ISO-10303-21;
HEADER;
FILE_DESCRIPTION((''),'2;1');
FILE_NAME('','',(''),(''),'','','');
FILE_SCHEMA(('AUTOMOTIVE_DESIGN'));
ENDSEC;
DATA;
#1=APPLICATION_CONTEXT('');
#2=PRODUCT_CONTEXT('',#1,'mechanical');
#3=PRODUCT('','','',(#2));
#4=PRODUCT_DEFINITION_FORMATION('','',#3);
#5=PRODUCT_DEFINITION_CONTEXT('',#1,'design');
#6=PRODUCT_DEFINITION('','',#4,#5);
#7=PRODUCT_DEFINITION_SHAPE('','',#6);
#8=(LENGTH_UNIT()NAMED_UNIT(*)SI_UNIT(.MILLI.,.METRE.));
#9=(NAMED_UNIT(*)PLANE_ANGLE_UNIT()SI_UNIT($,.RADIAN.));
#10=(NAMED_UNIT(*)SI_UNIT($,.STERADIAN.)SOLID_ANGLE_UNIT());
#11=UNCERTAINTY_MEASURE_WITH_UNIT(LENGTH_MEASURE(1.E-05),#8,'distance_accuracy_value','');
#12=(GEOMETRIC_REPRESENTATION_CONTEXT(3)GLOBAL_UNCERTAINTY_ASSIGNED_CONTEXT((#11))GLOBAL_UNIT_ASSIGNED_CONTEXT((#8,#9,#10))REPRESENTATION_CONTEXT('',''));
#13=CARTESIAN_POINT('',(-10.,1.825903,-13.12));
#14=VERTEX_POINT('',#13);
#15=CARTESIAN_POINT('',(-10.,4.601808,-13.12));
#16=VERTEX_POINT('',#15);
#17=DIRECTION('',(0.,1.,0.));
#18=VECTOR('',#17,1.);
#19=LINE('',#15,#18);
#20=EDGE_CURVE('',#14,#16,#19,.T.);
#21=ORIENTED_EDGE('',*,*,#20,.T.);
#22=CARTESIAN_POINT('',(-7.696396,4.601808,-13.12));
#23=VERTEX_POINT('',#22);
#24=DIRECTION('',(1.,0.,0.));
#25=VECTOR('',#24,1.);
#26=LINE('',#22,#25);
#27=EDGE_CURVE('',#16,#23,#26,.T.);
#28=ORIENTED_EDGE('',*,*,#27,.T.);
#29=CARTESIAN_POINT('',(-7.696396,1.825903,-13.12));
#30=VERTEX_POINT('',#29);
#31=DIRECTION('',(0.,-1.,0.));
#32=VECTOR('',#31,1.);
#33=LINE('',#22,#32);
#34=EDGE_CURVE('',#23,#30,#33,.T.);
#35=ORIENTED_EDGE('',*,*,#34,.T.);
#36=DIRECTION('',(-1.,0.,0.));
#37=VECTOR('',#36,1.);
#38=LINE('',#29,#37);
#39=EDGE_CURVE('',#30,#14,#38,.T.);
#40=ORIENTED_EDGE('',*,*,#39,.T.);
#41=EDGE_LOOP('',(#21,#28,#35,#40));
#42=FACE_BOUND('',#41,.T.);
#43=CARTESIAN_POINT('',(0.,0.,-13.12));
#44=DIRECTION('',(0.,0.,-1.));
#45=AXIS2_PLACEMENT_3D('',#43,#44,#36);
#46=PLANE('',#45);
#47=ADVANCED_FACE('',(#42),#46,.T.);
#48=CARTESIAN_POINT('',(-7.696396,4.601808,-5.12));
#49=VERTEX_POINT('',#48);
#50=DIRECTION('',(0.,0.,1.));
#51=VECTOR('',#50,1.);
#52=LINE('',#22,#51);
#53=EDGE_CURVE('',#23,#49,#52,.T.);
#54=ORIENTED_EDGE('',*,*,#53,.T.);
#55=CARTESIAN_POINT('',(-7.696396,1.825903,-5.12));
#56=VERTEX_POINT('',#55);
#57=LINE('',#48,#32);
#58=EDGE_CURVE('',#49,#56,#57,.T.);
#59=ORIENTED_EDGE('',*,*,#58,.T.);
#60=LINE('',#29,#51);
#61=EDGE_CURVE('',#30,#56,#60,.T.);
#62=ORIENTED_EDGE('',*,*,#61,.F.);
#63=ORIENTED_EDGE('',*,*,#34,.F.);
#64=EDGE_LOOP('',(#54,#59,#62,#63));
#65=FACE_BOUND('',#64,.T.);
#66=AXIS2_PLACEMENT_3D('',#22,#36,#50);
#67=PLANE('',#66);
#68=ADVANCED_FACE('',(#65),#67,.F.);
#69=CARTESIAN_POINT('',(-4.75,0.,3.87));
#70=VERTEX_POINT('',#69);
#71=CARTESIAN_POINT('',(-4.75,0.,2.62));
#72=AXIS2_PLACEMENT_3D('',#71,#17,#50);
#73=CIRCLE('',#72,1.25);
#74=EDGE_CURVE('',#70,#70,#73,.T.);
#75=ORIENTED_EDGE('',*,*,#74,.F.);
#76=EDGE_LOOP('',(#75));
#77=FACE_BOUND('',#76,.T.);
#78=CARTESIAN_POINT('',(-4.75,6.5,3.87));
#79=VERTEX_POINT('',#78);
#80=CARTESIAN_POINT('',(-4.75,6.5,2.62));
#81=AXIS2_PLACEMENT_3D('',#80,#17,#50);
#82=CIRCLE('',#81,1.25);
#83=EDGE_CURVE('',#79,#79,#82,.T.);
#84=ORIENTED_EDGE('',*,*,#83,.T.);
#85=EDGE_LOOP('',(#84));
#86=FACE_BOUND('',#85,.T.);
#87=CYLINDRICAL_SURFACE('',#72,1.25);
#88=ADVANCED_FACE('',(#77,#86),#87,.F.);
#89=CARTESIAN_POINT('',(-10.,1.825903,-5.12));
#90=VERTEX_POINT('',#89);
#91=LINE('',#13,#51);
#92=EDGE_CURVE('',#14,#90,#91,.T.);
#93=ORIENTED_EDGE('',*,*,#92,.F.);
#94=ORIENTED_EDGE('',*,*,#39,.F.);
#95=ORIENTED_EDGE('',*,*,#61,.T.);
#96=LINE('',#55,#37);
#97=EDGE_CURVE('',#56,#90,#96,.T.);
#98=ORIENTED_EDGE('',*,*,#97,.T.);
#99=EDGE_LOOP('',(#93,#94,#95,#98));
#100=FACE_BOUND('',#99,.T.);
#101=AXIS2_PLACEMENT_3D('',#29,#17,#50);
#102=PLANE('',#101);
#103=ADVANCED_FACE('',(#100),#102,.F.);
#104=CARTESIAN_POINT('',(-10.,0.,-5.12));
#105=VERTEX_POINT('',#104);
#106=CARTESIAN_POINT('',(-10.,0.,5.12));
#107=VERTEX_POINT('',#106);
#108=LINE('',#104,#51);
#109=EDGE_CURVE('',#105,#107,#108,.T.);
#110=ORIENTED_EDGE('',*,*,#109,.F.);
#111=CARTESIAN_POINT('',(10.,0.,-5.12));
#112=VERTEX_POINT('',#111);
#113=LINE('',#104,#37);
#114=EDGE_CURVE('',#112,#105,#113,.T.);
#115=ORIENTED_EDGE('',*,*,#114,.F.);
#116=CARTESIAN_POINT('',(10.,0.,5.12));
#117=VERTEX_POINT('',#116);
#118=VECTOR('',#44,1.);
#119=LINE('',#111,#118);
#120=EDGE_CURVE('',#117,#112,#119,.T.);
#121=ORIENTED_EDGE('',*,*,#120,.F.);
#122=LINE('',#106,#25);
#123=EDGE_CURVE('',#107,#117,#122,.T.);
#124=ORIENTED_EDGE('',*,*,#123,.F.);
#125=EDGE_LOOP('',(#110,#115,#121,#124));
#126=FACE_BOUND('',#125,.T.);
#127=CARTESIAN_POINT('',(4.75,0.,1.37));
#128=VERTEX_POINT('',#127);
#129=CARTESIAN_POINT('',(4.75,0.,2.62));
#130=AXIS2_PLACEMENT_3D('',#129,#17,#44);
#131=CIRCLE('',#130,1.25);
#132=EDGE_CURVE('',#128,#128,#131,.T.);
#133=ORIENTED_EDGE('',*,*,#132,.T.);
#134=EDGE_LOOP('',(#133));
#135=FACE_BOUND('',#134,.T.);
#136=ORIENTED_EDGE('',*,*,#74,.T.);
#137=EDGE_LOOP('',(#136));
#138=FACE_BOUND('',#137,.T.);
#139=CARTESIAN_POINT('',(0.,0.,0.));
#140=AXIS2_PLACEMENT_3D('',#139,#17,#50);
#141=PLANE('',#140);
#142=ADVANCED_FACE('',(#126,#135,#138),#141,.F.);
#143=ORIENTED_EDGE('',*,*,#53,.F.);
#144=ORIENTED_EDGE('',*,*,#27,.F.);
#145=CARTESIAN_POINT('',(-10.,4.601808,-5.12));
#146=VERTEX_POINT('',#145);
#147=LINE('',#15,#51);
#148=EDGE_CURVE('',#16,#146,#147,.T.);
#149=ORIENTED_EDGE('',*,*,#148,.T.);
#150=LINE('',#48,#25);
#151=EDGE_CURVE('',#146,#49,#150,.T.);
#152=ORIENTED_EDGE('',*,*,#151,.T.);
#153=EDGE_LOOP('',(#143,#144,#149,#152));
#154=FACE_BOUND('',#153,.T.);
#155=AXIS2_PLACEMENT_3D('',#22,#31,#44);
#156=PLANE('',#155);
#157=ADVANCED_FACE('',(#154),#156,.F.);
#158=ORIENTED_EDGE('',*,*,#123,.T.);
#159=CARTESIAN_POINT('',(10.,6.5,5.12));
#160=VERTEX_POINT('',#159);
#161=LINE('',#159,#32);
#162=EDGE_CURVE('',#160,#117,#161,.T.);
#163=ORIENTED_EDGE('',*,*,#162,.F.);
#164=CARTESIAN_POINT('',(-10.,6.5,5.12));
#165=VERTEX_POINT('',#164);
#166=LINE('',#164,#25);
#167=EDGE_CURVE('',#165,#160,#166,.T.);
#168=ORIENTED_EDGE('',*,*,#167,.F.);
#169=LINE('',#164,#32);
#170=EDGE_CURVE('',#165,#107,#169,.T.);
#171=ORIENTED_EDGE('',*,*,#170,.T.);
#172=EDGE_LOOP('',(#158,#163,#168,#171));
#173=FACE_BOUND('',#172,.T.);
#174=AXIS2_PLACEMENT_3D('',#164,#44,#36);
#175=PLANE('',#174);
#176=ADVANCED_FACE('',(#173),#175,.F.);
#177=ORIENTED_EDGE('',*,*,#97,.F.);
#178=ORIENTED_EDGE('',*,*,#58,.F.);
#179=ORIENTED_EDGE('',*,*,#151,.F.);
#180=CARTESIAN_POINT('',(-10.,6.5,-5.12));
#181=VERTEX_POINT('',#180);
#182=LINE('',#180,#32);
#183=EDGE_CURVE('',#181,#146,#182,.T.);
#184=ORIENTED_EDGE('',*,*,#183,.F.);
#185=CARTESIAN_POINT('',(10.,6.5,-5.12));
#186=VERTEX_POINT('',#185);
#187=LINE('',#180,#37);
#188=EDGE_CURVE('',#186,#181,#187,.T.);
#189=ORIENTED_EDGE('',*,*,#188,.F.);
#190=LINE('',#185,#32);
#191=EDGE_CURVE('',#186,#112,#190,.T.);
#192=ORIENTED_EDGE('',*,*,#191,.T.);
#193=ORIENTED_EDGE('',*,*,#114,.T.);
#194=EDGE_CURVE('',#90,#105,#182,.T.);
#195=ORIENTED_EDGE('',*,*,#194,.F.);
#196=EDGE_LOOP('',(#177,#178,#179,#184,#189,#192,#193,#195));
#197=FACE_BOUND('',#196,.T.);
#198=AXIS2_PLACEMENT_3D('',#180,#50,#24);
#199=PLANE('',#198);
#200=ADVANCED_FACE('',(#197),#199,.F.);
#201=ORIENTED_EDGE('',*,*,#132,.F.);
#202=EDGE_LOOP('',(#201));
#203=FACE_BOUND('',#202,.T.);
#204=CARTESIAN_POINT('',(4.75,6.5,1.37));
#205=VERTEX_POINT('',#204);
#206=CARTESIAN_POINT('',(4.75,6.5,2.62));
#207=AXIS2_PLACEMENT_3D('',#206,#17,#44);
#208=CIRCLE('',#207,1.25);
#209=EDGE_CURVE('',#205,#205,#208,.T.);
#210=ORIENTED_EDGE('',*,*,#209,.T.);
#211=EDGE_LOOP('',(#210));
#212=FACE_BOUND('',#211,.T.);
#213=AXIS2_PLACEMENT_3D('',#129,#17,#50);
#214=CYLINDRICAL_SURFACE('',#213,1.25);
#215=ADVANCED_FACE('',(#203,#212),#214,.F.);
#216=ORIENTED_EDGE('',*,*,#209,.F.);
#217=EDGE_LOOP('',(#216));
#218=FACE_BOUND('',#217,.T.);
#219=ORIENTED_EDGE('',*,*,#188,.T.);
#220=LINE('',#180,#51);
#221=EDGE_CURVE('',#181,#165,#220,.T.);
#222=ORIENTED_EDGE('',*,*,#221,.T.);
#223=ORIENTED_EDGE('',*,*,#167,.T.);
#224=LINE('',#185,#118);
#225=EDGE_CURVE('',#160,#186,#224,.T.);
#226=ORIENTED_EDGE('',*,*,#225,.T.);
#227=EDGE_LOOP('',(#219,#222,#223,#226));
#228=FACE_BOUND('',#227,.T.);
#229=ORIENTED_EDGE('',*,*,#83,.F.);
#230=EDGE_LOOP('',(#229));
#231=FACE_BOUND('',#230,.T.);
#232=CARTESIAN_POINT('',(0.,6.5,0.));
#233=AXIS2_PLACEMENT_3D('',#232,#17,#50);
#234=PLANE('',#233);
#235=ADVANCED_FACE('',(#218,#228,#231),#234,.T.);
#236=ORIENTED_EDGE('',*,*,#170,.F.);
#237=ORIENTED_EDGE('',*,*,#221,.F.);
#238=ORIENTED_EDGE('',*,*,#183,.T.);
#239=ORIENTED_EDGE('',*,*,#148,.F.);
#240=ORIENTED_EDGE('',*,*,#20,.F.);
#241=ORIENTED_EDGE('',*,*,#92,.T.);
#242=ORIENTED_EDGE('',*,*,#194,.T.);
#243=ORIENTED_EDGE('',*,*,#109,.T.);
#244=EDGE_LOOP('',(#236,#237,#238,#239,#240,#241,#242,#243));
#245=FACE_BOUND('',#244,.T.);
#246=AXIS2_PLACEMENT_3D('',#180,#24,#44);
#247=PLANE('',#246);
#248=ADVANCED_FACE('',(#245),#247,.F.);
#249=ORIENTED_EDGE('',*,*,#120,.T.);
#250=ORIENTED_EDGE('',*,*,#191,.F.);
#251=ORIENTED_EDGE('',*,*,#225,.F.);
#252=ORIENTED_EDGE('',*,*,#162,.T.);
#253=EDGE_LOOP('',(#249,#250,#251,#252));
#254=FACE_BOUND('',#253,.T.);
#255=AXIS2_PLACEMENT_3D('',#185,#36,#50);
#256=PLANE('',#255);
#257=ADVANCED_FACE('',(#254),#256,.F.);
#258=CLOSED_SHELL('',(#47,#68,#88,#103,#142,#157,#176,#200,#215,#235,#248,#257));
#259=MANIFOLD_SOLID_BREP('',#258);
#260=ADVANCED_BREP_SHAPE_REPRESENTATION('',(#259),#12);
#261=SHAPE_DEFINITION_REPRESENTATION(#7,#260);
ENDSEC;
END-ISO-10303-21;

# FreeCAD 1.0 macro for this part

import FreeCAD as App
import Part
import Sketcher
from FreeCAD import Vector

doc = App.newDocument("Part")
body = doc.addObject("PartDesign::Body", "Body")

sketch1 = body.newObject("Sketcher::SketchObject", "Sketch")
sketch1.AttachmentSupport = (doc.getObject("XZ_Plane"), [""])
sketch1.MapMode = "FlatFace"
sketch1.addGeometry([
    Part.LineSegment(Vector(-10, -5, 0), Vector(-10, 5, 0)),
    Part.LineSegment(Vector(-10, 5, 0), Vector(10, 5, 0)),
    Part.LineSegment(Vector(10, 5, 0), Vector(10, -5, 0)),
    Part.LineSegment(Vector(10, -5, 0), Vector(-10, -5, 0)),
], False)
sketch1.addConstraint([
    Sketcher.Constraint("Coincident", 0, 2, 1, 1),
    Sketcher.Constraint("Coincident", 1, 2, 2, 1),
    Sketcher.Constraint("Coincident", 2, 2, 3, 1),
    Sketcher.Constraint("Coincident", 3, 2, 0, 1),
    Sketcher.Constraint("Vertical", 0),
    Sketcher.Constraint("Horizontal", 1),
    Sketcher.Constraint("Vertical", 2),
    Sketcher.Constraint("Horizontal", 3),
    Sketcher.Constraint("Symmetric", 0, 2, 2, 2, -1, 1),
    Sketcher.Constraint("DistanceX", 1, 1, 1, 2, 20.0),
    Sketcher.Constraint("DistanceY", 0, 1, 0, 2, 10.24),
])
pad1 = body.newObject("PartDesign::Pad", "Pad")
pad1.Profile = sketch1
pad1.Length = 6.5
pad1.Reversed = True

sketch2 = body.newObject("Sketcher::SketchObject", "Sketch001")
sketch2.AttachmentSupport = (doc.getObject("XZ_Plane"), [""])
sketch2.MapMode = "FlatFace"
sketch2.AttachmentOffset = App.Placement(Vector(0, 0, -6.5), App.Rotation())
sketch2.addGeometry([
    Part.Circle(Vector(-4.8, 2.6, 0), Vector(0, 0, 1), 1.2),
    Part.Circle(Vector(4.8, 2.6, 0), Vector(0, 0, 1), 1.2),
], False)
sketch2.addConstraint([
    Sketcher.Constraint("Equal", 0, 1),
    Sketcher.Constraint("Symmetric", 0, 3, 1, 3, -2),
    Sketcher.Constraint("Diameter", 0, 2.5),
    Sketcher.Constraint("DistanceX", 0, 3, 1, 3, 9.5),
    Sketcher.Constraint("DistanceY", -1, 1, 0, 3, 2.62),
])
pocket1 = body.newObject("PartDesign::Pocket", "Pocket")
pocket1.Profile = sketch2
pocket1.Type = "ThroughAll"
pocket1.Reversed = True

sketch3 = body.newObject("Sketcher::SketchObject", "Sketch002")
sketch3.AttachmentSupport = (doc.getObject("XY_Plane"), [""])
sketch3.MapMode = "FlatFace"
sketch3.AttachmentOffset = App.Placement(Vector(0, 0, -5.12), App.Rotation())
sketch3.addGeometry([
    Part.LineSegment(Vector(-7.7, 4.6, 0), Vector(-7.7, 1.8, 0)),
    Part.LineSegment(Vector(-7.7, 1.8, 0), Vector(-10, 1.8, 0)),
    Part.LineSegment(Vector(-10, 1.8, 0), Vector(-10, 4.6, 0)),
    Part.LineSegment(Vector(-10, 4.6, 0), Vector(-7.7, 4.6, 0)),
], False)
sketch3.addConstraint([
    Sketcher.Constraint("Coincident", 0, 2, 1, 1),
    Sketcher.Constraint("Coincident", 1, 2, 2, 1),
    Sketcher.Constraint("Coincident", 2, 2, 3, 1),
    Sketcher.Constraint("Coincident", 3, 2, 0, 1),
    Sketcher.Constraint("Vertical", 0),
    Sketcher.Constraint("Horizontal", 1),
    Sketcher.Constraint("Vertical", 2),
    Sketcher.Constraint("Horizontal", 3),
    Sketcher.Constraint("DistanceX", 1, 2, -1, 1, 10.0),
    Sketcher.Constraint("DistanceX", 1, 2, 1, 1, 2.303604),
    Sketcher.Constraint("DistanceY", 0, 2, 0, 1, 2.775905),
    Sketcher.Constraint("DistanceY", -1, 1, 0, 2, 1.825903),
])
pad2 = body.newObject("PartDesign::Pad", "Pad001")
pad2.Profile = sketch3
pad2.Length = 8
pad2.Reversed = True

doc.recompute()
